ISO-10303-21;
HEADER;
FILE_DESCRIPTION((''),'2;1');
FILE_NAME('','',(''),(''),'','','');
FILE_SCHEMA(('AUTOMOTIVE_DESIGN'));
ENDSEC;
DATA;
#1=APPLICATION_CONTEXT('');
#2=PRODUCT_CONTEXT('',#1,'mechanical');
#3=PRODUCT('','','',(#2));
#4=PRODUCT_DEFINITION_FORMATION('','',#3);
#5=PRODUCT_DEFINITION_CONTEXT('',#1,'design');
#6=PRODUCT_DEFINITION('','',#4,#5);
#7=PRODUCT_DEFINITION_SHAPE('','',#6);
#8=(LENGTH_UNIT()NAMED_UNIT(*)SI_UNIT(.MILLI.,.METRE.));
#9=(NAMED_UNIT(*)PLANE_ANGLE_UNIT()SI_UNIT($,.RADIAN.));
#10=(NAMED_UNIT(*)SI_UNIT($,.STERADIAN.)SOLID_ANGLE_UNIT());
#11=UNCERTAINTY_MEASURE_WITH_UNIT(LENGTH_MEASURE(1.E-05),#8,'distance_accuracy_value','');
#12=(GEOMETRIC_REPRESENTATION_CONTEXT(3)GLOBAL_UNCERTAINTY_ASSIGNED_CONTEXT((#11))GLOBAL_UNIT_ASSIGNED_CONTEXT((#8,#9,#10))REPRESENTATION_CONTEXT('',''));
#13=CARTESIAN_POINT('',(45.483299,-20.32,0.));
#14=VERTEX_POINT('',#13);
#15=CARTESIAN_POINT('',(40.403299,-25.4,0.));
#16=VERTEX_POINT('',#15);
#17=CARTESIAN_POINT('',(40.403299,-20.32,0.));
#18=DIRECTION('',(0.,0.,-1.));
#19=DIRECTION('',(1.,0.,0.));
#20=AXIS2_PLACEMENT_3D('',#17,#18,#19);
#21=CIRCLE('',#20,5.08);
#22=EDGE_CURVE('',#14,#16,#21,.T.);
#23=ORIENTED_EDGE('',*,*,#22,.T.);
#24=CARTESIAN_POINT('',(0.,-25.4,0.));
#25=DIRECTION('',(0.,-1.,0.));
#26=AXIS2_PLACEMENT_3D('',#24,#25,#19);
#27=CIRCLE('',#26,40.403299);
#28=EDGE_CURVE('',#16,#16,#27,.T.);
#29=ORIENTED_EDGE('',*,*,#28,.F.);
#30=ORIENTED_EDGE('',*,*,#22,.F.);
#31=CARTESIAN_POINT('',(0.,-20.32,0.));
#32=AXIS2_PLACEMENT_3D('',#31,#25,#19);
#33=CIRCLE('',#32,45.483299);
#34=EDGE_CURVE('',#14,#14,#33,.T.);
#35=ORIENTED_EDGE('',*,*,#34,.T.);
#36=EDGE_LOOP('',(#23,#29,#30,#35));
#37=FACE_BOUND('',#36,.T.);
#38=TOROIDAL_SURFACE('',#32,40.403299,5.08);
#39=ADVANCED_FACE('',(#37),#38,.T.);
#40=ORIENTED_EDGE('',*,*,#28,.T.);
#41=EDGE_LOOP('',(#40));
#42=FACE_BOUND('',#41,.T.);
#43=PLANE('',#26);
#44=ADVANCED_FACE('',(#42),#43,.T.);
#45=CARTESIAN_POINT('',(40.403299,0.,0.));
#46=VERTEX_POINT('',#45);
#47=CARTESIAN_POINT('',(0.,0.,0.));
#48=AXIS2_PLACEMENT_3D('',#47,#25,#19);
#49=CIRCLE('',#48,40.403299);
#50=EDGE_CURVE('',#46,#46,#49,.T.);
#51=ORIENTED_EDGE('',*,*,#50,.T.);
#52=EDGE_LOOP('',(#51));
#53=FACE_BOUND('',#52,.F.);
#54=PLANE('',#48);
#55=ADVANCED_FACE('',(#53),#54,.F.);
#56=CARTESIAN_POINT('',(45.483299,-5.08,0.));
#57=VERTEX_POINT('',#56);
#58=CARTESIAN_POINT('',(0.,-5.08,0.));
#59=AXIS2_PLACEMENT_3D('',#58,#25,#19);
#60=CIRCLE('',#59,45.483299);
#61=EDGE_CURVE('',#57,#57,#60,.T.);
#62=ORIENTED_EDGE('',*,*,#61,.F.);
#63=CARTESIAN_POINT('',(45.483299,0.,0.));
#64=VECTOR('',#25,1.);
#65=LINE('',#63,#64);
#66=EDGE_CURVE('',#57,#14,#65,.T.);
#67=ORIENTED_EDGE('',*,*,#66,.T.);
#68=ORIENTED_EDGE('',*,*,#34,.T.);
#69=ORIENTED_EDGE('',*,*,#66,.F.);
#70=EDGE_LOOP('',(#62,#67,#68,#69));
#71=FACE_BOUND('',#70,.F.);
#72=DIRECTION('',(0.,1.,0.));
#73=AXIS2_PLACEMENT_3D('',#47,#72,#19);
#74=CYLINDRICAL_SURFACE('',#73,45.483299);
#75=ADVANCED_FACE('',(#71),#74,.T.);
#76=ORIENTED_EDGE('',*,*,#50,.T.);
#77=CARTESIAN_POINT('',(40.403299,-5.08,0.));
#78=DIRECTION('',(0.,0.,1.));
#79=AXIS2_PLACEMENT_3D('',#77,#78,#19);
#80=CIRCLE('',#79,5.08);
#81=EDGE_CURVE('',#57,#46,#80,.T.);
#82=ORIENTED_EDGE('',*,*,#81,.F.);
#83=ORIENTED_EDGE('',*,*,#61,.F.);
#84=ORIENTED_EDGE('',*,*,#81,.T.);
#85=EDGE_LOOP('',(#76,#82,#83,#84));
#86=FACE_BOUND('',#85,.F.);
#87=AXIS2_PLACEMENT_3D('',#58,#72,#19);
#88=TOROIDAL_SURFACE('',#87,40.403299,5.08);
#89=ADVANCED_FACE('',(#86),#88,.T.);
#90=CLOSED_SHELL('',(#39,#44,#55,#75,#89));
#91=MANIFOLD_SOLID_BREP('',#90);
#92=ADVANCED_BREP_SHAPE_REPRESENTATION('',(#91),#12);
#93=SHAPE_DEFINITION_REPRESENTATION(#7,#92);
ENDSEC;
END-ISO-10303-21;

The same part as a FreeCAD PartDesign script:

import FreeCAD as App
import Part
import Sketcher
Q = App.Units.Quantity

doc = App.newDocument("Part")
params = doc.addObject("Spreadsheet::Sheet", "Params")
for row, (alias, value) in enumerate([
    ("pad1_length", "1 in"),
    ("fillet_radius", "0.2 in"),
], start=1):
    params.set(f"A{row}", alias)
    params.set(f"B{row}", "=" + value)
    params.setAlias(f"B{row}", alias)

body = doc.addObject("PartDesign::Body", "Body")

sketch1 = doc.addObject("Sketcher::SketchObject", "Sketch")
body.addObject(sketch1)
sketch1.AttachmentSupport = (doc.XZ_Plane, [""])
sketch1.MapMode = "FlatFace"
sketch1.addGeometry(Part.Circle(App.Vector(0, 0, 0), App.Vector(0, 0, 1), 45), False)
sketch1.addConstraint(Sketcher.Constraint("Coincident", 0, 3, -1, 1))
sketch1.addConstraint(Sketcher.Constraint("Diameter", 0, Q("90.966598 mm")))
pad1 = doc.addObject("PartDesign::Pad", "Pad")
body.addObject(pad1)
pad1.Profile = sketch1
pad1.setExpression("Length", "Params.pad1_length")
doc.recompute()

fillet = doc.addObject("PartDesign::Fillet", "Fillet")
body.addObject(fillet)
fillet.Base = (pad1, ["Edge1"])
fillet.UseAllEdges = True
fillet.setExpression("Radius", "Params.fillet_radius")

doc.recompute()
